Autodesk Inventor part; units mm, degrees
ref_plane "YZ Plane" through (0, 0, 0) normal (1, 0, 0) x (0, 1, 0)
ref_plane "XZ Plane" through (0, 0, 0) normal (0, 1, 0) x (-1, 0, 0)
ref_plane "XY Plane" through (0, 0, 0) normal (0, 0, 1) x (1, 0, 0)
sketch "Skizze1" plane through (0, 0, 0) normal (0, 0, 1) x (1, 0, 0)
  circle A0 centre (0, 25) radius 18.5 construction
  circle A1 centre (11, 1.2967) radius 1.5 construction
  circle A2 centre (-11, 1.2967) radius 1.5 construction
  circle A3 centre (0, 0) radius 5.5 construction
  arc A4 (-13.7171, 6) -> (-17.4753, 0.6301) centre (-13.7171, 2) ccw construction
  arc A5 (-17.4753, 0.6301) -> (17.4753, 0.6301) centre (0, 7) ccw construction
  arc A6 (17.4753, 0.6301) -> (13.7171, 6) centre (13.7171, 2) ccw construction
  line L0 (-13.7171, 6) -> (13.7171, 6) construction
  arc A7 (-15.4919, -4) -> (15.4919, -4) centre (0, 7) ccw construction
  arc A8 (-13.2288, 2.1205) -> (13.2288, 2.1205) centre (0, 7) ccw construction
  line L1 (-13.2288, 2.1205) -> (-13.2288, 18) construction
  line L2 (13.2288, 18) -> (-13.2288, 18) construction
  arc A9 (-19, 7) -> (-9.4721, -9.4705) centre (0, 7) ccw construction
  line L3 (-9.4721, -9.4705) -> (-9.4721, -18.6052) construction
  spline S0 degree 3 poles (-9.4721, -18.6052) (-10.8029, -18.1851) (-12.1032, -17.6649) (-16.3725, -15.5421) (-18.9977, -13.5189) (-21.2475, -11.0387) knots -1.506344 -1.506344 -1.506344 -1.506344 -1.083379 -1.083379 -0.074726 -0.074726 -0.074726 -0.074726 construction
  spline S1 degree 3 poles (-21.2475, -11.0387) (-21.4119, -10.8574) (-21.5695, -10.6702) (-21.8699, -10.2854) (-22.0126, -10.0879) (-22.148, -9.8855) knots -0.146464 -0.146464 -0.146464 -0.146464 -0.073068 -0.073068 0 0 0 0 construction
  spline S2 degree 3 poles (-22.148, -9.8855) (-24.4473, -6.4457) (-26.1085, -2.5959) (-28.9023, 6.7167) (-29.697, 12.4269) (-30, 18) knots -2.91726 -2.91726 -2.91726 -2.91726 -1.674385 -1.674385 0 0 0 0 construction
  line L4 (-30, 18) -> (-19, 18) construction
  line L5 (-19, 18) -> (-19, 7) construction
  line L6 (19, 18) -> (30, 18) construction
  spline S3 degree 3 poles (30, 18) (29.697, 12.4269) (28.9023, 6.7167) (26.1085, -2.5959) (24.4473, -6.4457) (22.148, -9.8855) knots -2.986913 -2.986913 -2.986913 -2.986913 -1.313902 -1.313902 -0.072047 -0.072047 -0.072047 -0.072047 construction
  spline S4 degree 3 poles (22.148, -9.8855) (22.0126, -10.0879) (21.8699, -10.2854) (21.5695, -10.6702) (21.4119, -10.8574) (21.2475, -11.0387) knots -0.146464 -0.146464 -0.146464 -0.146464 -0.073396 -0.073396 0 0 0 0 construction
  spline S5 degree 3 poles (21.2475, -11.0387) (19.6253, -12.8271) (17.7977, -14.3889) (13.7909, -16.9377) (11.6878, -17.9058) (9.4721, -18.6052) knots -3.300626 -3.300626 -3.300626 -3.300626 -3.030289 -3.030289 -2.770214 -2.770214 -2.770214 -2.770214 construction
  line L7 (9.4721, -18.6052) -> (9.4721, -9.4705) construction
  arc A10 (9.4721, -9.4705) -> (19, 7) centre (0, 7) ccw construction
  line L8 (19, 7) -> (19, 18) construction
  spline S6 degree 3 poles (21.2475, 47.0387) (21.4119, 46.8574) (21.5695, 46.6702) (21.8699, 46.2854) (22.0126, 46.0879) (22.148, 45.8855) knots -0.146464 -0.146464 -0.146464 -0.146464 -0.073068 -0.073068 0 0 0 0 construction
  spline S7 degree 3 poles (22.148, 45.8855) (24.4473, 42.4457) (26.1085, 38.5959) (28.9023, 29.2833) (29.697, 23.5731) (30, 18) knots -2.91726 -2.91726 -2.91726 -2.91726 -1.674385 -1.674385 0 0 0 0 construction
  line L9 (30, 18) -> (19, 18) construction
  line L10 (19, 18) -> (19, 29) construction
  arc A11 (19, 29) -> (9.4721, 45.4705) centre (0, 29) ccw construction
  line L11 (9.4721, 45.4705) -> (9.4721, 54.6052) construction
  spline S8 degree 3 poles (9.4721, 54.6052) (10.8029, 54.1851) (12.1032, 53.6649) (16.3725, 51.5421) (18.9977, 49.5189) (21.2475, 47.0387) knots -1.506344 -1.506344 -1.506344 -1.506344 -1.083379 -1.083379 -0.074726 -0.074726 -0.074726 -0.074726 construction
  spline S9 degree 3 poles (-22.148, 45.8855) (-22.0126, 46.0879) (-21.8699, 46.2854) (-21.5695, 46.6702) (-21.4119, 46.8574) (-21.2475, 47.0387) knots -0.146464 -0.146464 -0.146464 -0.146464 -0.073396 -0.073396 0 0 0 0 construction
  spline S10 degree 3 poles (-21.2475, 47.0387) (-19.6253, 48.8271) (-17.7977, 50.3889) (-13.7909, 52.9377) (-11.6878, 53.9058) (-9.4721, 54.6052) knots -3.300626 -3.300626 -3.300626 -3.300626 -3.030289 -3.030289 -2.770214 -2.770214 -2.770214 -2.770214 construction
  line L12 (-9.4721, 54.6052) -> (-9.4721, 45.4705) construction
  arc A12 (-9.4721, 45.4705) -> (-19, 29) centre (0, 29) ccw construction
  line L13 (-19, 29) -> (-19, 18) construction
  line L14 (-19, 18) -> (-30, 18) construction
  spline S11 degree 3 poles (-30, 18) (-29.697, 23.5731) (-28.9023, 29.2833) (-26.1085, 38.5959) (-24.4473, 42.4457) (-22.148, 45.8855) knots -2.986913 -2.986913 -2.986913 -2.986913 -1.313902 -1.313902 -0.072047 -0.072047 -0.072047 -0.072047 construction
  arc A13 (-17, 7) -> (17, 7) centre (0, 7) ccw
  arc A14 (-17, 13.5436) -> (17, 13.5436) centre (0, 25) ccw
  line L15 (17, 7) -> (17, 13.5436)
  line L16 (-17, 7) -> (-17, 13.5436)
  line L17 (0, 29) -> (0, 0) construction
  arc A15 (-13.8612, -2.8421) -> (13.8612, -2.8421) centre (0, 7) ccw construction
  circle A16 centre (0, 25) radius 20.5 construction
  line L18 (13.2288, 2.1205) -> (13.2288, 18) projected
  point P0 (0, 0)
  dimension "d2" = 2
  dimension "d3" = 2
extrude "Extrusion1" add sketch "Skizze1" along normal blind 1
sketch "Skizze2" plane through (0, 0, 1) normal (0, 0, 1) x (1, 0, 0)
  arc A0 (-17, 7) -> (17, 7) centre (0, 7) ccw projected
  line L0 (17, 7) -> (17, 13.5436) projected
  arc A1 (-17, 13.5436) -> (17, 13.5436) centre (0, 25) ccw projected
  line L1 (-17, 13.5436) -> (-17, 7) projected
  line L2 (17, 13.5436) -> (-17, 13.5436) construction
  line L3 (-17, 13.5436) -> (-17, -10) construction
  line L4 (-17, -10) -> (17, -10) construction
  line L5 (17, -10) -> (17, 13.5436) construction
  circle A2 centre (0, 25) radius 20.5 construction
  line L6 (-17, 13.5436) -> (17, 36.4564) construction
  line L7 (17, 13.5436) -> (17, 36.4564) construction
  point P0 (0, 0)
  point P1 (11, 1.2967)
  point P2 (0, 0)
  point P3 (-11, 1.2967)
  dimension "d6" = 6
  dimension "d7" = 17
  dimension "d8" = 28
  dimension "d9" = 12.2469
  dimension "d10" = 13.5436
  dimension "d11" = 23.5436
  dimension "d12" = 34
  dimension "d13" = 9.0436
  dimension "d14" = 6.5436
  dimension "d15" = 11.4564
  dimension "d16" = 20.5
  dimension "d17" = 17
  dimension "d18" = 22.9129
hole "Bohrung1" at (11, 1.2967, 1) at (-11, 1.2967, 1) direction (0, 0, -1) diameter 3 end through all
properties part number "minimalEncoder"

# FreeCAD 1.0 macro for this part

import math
import FreeCAD as App
import Part
import Sketcher

doc = App.newDocument("Part")
params = doc.addObject("Spreadsheet::Sheet", "Params")
for row, (alias, value) in enumerate([
    ("sketch1_radius", "17 mm"),
    ("sketch1_radius2", "20.5 mm"),
    ("pad1_length", "1 mm"),
    ("sketch2_diameter", "3 mm"),
    ("hole_diameter", "3 mm"),
], start=1):
    params.set(f"A{row}", alias)
    params.set(f"B{row}", "=" + value)
    params.setAlias(f"B{row}", alias)

body = doc.addObject("PartDesign::Body", "Body")

# Sketch on XY plane
sketch1 = body.newObject("Sketcher::SketchObject", "Sketch")
sketch1.AttachmentSupport = (doc.getObject("XY_Plane"), [""])
sketch1.MapMode = "FlatFace"
sketch1.addGeometry(Part.LineSegment(App.Vector(-17, 14, 0), App.Vector(-17, 7, 0)), False)
sketch1.addGeometry(Part.ArcOfCircle(Part.Circle(App.Vector(0, 7, 0), App.Vector(0, 0, 1), 17), math.radians(180), math.radians(360)), False)
sketch1.addGeometry(Part.LineSegment(App.Vector(17, 7, 0), App.Vector(17, 14, 0)), False)
sketch1.addGeometry(Part.ArcOfCircle(Part.Circle(App.Vector(0, 25, 0), App.Vector(0, 0, 1), 20), math.radians(-146), math.radians(-34)), False)
sketch1.addConstraint(Sketcher.Constraint("Tangent", 0, 2, 1, 1))
sketch1.addConstraint(Sketcher.Constraint("Tangent", 1, 2, 2, 1))
sketch1.addConstraint(Sketcher.Constraint("Coincident", 2, 2, 3, 2))
sketch1.addConstraint(Sketcher.Constraint("Coincident", 3, 1, 0, 1))
sketch1.addConstraint(Sketcher.Constraint("Vertical", 0))
sketch1.addConstraint(Sketcher.Constraint("Vertical", 2))
sketch1.addConstraint(Sketcher.Constraint("Symmetric", 2, 2, 3, 1, -2))
sketch1.addConstraint(Sketcher.Constraint("Radius", 1, 17.0))
sketch1.addConstraint(Sketcher.Constraint("Radius", 3, 20.5))
sketch1.addConstraint(Sketcher.Constraint("DistanceY", -1, 1, 1, 3, 7.0))
sketch1.addConstraint(Sketcher.Constraint("DistanceY", -1, 1, 3, 3, 25.0))
sketch1.setExpression("Constraints[7]", "Params.sketch1_radius")
sketch1.setExpression("Constraints[8]", "Params.sketch1_radius2")
pad1 = body.newObject("PartDesign::Pad", "Pad")
pad1.Profile = sketch1
pad1.setExpression("Length", "Params.pad1_length")

# Sketch on XY plane
sketch2 = body.newObject("Sketcher::SketchObject", "Sketch001")
sketch2.AttachmentSupport = (doc.getObject("XY_Plane"), [""])
sketch2.MapMode = "FlatFace"
sketch2.AttachmentOffset = App.Placement(App.Vector(0, 0, 1), App.Rotation())
sketch2.addGeometry(Part.Circle(App.Vector(11, 1.3, 0), App.Vector(0, 0, 1), 1.5), False)
sketch2.addGeometry(Part.Circle(App.Vector(-11, 1.3, 0), App.Vector(0, 0, 1), 1.5), False)
sketch2.addConstraint(Sketcher.Constraint("Equal", 0, 1))
sketch2.addConstraint(Sketcher.Constraint("Symmetric", 0, 3, 1, 3, -2))
sketch2.addConstraint(Sketcher.Constraint("Diameter", 0, 3.0))
sketch2.addConstraint(Sketcher.Constraint("DistanceX", -1, 1, 0, 3, 11.0))
sketch2.addConstraint(Sketcher.Constraint("DistanceY", -1, 1, 0, 3, 1.2967))
sketch2.setExpression("Constraints[2]", "Params.sketch2_diameter")
doc.recompute()
hole = body.newObject("PartDesign::Hole", "Hole")
hole.Profile = sketch2
hole.ThreadType = "None"
hole.setExpression("Diameter", "Params.hole_diameter")
hole.DepthType = "ThroughAll"

doc.recompute()
